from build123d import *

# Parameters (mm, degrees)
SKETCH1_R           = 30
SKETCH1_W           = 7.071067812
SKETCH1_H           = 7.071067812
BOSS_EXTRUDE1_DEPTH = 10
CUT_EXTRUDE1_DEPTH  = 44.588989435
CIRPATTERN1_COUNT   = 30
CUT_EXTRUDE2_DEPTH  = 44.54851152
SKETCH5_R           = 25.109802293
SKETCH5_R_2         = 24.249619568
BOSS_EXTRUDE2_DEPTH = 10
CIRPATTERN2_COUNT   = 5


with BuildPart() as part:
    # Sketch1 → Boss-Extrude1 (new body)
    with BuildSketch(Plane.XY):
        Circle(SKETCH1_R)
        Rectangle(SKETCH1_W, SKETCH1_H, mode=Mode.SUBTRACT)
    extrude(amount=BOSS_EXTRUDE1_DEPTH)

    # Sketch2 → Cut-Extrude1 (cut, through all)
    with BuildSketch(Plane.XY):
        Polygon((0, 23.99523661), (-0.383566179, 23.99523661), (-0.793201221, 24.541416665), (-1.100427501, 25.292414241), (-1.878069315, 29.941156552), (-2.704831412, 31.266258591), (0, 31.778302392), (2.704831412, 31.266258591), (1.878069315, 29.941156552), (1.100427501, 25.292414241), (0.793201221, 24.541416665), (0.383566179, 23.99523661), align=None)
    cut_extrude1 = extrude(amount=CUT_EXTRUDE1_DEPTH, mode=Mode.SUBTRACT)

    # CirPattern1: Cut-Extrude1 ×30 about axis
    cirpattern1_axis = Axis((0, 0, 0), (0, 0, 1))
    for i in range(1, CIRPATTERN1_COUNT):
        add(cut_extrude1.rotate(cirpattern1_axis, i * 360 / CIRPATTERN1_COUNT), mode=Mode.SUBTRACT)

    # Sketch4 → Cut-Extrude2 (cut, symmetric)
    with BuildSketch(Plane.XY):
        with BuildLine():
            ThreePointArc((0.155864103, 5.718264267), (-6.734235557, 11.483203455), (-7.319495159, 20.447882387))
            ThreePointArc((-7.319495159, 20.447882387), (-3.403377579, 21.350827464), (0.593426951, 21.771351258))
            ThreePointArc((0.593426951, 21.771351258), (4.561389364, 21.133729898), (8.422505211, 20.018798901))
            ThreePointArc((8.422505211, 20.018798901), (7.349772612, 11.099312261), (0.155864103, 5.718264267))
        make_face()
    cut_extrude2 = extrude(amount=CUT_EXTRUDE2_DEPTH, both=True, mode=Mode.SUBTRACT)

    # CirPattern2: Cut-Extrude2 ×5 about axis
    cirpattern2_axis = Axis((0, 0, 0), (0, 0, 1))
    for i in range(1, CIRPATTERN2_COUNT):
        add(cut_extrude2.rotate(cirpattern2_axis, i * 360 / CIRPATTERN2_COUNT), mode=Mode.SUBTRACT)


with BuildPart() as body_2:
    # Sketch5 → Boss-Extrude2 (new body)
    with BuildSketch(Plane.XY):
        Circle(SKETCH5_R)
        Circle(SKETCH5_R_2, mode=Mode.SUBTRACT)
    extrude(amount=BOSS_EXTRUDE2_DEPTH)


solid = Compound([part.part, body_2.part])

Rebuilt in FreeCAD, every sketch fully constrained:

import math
import FreeCAD as App
import Part
import Sketcher

V = App.Vector

doc = App.newDocument("Part")
body = doc.addObject("PartDesign::Body", "Body")

sketch1 = body.newObject("Sketcher::SketchObject", "Sketch")
sketch1.AttachmentSupport = (doc.getObject("XY_Plane"), [""])
sketch1.MapMode = "FlatFace"
sketch1.addGeometry([
    Part.Circle(V(0, 0, 0), V(0, 0, 1), 30),
    Part.LineSegment(V(4, -4, 0), V(-4, -4, 0)),
    Part.LineSegment(V(-4, -4, 0), V(-4, 4, 0)),
    Part.LineSegment(V(-4, 4, 0), V(4, 4, 0)),
    Part.LineSegment(V(4, 4, 0), V(4, -4, 0)),
], False)
sketch1.addConstraint([
    Sketcher.Constraint("Coincident", 1, 2, 2, 1),
    Sketcher.Constraint("Coincident", 2, 2, 3, 1),
    Sketcher.Constraint("Coincident", 3, 2, 4, 1),
    Sketcher.Constraint("Coincident", 4, 2, 1, 1),
    Sketcher.Constraint("Horizontal", 1),
    Sketcher.Constraint("Vertical", 2),
    Sketcher.Constraint("Horizontal", 3),
    Sketcher.Constraint("Vertical", 4),
    Sketcher.Constraint("Coincident", 0, 3, -1, 1),
    Sketcher.Constraint("Symmetric", 1, 2, 3, 2, -1, 1),
    Sketcher.Constraint("Equal", 3, 2),
    Sketcher.Constraint("Diameter", 0, 60.0),
    Sketcher.Constraint("DistanceX", 1, 2, 1, 1, 7.071068),
])
pad1 = body.newObject("PartDesign::Pad", "Pad")
pad1.Profile = sketch1
pad1.Length = 10

sketch2 = body.newObject("Sketcher::SketchObject", "Sketch001")
sketch2.AttachmentSupport = (doc.getObject("XY_Plane"), [""])
sketch2.MapMode = "FlatFace"
sketch2.addGeometry([
    Part.LineSegment(V(-0.4, 24, 0), V(0.4, 24, 0)),
    Part.LineSegment(V(0.4, 24, 0), V(0.8, 24.5, 0)),
    Part.LineSegment(V(0.8, 24.5, 0), V(1.1, 25.3, 0)),
    Part.LineSegment(V(1.1, 25.3, 0), V(1.9, 29.9, 0)),
    Part.LineSegment(V(1.9, 29.9, 0), V(2.7, 31.3, 0)),
    Part.LineSegment(V(2.7, 31.3, 0), V(0, 31.8, 0)),
    Part.LineSegment(V(0, 31.8, 0), V(-2.7, 31.3, 0)),
    Part.LineSegment(V(-2.7, 31.3, 0), V(-1.9, 29.9, 0)),
    Part.LineSegment(V(-1.9, 29.9, 0), V(-1.1, 25.3, 0)),
    Part.LineSegment(V(-1.1, 25.3, 0), V(-0.8, 24.5, 0)),
    Part.LineSegment(V(-0.8, 24.5, 0), V(-0.4, 24, 0)),
], False)
sketch2.addConstraint([
    Sketcher.Constraint("Coincident", 0, 2, 1, 1),
    Sketcher.Constraint("Coincident", 1, 2, 2, 1),
    Sketcher.Constraint("Coincident", 2, 2, 3, 1),
    Sketcher.Constraint("Coincident", 3, 2, 4, 1),
    Sketcher.Constraint("Coincident", 4, 2, 5, 1),
    Sketcher.Constraint("Coincident", 5, 2, 6, 1),
    Sketcher.Constraint("Coincident", 6, 2, 7, 1),
    Sketcher.Constraint("Coincident", 7, 2, 8, 1),
    Sketcher.Constraint("Coincident", 8, 2, 9, 1),
    Sketcher.Constraint("Coincident", 9, 2, 10, 1),
    Sketcher.Constraint("Coincident", 10, 2, 0, 1),
    Sketcher.Constraint("Horizontal", 0),
    Sketcher.Constraint("Symmetric", 4, 2, 6, 2, -2),
    Sketcher.Constraint("Symmetric", 3, 2, 7, 2, -2),
    Sketcher.Constraint("Symmetric", 2, 2, 8, 2, -2),
    Sketcher.Constraint("Symmetric", 1, 2, 9, 2, -2),
    Sketcher.Constraint("PointOnObject", 5, 2, -2),
    Sketcher.Constraint("Equal", 1, 10),
    Sketcher.Constraint("DistanceX", -1, 1, 1, 2, 0.793201),
    Sketcher.Constraint("DistanceX", 6, 2, 3, 2, 4.582901),
    Sketcher.Constraint("Distance", 2, 0.811409),
    Sketcher.Constraint("Distance", 5, 2.752872),
    Sketcher.Constraint("DistanceX", 0, 1, 0, 2, 0.767132),
    Sketcher.Constraint("DistanceX", -1, 1, 3, 2, 1.878069),
    Sketcher.Constraint("DistanceY", -1, 1, 4, 2, 31.266259),
    Sketcher.Constraint("DistanceY", 0, 2, 1, 2, 0.54618),
    Sketcher.Constraint("DistanceX", 0, 2, 2, 2, 0.716861),
    Sketcher.Constraint("DistanceY", 1, 2, 3, 2, 5.39974),
    Sketcher.Constraint("DistanceY", 1, 2, 4, 2, 6.724842),
])
pocket1 = body.newObject("PartDesign::Pocket", "Pocket")
pocket1.Profile = sketch2
pocket1.Type = "ThroughAll"
pocket1.Reversed = True
doc.recompute()

polarpattern = body.newObject("PartDesign::PolarPattern", "PolarPattern")
polarpattern.Originals = [pocket1]
polarpattern.Axis = (doc.getObject("Z_Axis"), [""])
polarpattern.Angle = 360
polarpattern.Occurrences = 30
body.Tip = polarpattern

sketch3 = body.newObject("Sketcher::SketchObject", "Sketch002")
sketch3.AttachmentSupport = (doc.getObject("XY_Plane"), [""])
sketch3.MapMode = "FlatFace"
sketch3.addGeometry([
    Part.ArcOfCircle(Part.Circle(V(3, 17, 0), V(0, 0, 1), 11), math.radians(161), math.radians(253)),
    Part.ArcOfCircle(Part.Circle(V(-3, 17, 0), V(0, 0, 1), 11), math.radians(-76), math.radians(16)),
    Part.ArcOfCircle(Part.Circle(V(-3, -11, 0), V(0, 0, 1), 33), math.radians(70.4), math.radians(84.36)),
    Part.ArcOfCircle(Part.Circle(V(2, -11, 0), V(0, 0, 1), 33), math.radians(92.52), math.radians(106.47)),
], False)
sketch3.addConstraint([
    Sketcher.Constraint("Coincident", 0, 2, 1, 1),
    Sketcher.Constraint("Coincident", 1, 2, 2, 1),
    Sketcher.Constraint("Coincident", 2, 2, 3, 1),
    Sketcher.Constraint("Coincident", 3, 2, 0, 1),
    Sketcher.Constraint("Equal", 0, 1),
    Sketcher.Constraint("Equal", 2, 3),
    Sketcher.Constraint("Radius", 0, 11.415051),
    Sketcher.Constraint("Radius", 2, 33.020954),
    Sketcher.Constraint("DistanceX", 3, 2, 1, 2, 15.742),
    Sketcher.Constraint("DistanceY", -1, 1, 1, 2, 20.018799),
    Sketcher.Constraint("DistanceX", 1, 3, -1, 1, 2.532891),
    Sketcher.Constraint("DistanceX", 2, 3, -1, 1, 2.651889),
    Sketcher.Constraint("DistanceY", 2, 3, -1, 1, 11.08974),
    Sketcher.Constraint("DistanceX", -1, 1, 3, 3, 2.043849),
    Sketcher.Constraint("DistanceY", -1, 1, 2, 2, 21.771351),
    Sketcher.Constraint("DistanceY", 0, 3, 1, 3, 0.16294),
])
pocket2 = body.newObject("PartDesign::Pocket", "Pocket001")
pocket2.Profile = sketch3
pocket2.Length = 89.097023
pocket2.Midplane = True
doc.recompute()

polarpattern2 = body.newObject("PartDesign::PolarPattern", "PolarPattern001")
polarpattern2.Originals = [pocket2]
polarpattern2.Axis = (doc.getObject("Z_Axis"), [""])
polarpattern2.Angle = 360
polarpattern2.Occurrences = 5
body.Tip = polarpattern2
body2 = doc.addObject("PartDesign::Body", "Body001")

sketch4 = body2.newObject("Sketcher::SketchObject", "Sketch003")
sketch4.AttachmentSupport = (doc.getObject("XY_Plane001"), [""])
sketch4.MapMode = "FlatFace"
sketch4.addGeometry([
    Part.Circle(V(0, 0, 0), V(0, 0, 1), 25),
    Part.Circle(V(0, 0, 0), V(0, 0, 1), 24),
], False)
sketch4.addConstraint([
    Sketcher.Constraint("Coincident", 0, 3, -1, 1),
    Sketcher.Constraint("Coincident", 1, 3, -1, 1),
    Sketcher.Constraint("Diameter", 1, 48.499239),
    Sketcher.Constraint("Diameter", 0, 50.219605),
])
pad2 = body2.newObject("PartDesign::Pad", "Pad001")
pad2.Profile = sketch4
pad2.Length = 10

doc.recompute()
